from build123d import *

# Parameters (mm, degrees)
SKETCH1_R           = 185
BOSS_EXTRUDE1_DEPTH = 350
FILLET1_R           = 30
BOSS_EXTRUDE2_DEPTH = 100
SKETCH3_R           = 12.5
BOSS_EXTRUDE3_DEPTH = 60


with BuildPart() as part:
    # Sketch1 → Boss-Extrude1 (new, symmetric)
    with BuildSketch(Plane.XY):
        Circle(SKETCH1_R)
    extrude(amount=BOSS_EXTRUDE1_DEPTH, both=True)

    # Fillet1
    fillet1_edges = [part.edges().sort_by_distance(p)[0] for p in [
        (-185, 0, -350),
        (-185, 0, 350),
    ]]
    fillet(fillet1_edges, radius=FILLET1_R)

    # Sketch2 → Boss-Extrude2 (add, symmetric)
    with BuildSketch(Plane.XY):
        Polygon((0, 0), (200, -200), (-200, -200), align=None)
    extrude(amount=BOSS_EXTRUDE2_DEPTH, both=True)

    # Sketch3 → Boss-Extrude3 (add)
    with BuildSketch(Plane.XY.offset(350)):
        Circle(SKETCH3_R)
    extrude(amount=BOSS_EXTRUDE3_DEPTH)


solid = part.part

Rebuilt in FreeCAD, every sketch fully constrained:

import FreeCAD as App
import Part
import Sketcher

V = App.Vector
Q = App.Units.Quantity


def edges_at(feature, points):
    """Names of the edges that pass closest to the given points."""
    edges = feature.Shape.Edges
    near = lambda p: min(range(len(edges)), key=lambda i: edges[i].distToShape(Part.Vertex(*p))[0])
    return sorted({f"Edge{near(p) + 1}" for p in points})


def add_polygon(sketch, points):
    """Adds a closed chain of lines whose ends are joined by coincident constraints."""
    first, n = sketch.GeometryCount, len(points)
    for a, b in zip(points, points[1:] + points[:1]):
        sketch.addGeometry(Part.LineSegment(App.Vector(*a, 0), App.Vector(*b, 0)), False)
    for i in range(n):
        sketch.addConstraint(Sketcher.Constraint("Coincident", first + i, 2, first + (i + 1) % n, 1))

doc = App.newDocument("Part")
body = doc.addObject("PartDesign::Body", "Body")

sketch1 = body.newObject("Sketcher::SketchObject", "Sketch")
sketch1.AttachmentSupport = (doc.getObject("XY_Plane"), [""])
sketch1.MapMode = "FlatFace"
sketch1.addGeometry(Part.Circle(V(0, 0, 0), V(0, 0, 1), 185), False)
sketch1.addConstraint([
    Sketcher.Constraint("Coincident", 0, 3, -1, 1),
    Sketcher.Constraint("Diameter", 0, Q("370 mm")),
])
pad1 = body.newObject("PartDesign::Pad", "Pad")
pad1.Profile = sketch1
pad1.Length = 700
pad1.Midplane = True
doc.recompute()

fillet = body.newObject("PartDesign::Fillet", "Fillet")
fillet.Base = (pad1, edges_at(pad1, [(-185, 0, -350), (-185, 0, 350)]))
fillet.Radius = 30

sketch2 = body.newObject("Sketcher::SketchObject", "Sketch001")
sketch2.AttachmentSupport = (doc.getObject("XY_Plane"), [""])
sketch2.MapMode = "FlatFace"
add_polygon(sketch2, [(200, -200), (0, 0), (-200, -200)])
sketch2.addConstraint([
    Sketcher.Constraint("Horizontal", 2),
    Sketcher.Constraint("Coincident", 0, 2, -1, 1),
    Sketcher.Constraint("Perpendicular", 0, 1),
    Sketcher.Constraint("Equal", 0, 1),
    Sketcher.Constraint("DistanceX", 2, 1, 2, 2, Q("400 mm")),
])
pad2 = body.newObject("PartDesign::Pad", "Pad001")
pad2.Profile = sketch2
pad2.Length = 200
pad2.Midplane = True

sketch3 = body.newObject("Sketcher::SketchObject", "Sketch002")
sketch3.AttachmentSupport = (doc.getObject("XY_Plane"), [""])
sketch3.MapMode = "FlatFace"
sketch3.AttachmentOffset = App.Placement(V(0, 0, 350), App.Rotation())
sketch3.addGeometry(Part.Circle(V(0, 0, 0), V(0, 0, 1), 12.5), False)
sketch3.addConstraint([
    Sketcher.Constraint("Coincident", 0, 3, -1, 1),
    Sketcher.Constraint("Diameter", 0, Q("25 mm")),
])
pad3 = body.newObject("PartDesign::Pad", "Pad002")
pad3.Profile = sketch3
pad3.Length = 60

doc.recompute()
